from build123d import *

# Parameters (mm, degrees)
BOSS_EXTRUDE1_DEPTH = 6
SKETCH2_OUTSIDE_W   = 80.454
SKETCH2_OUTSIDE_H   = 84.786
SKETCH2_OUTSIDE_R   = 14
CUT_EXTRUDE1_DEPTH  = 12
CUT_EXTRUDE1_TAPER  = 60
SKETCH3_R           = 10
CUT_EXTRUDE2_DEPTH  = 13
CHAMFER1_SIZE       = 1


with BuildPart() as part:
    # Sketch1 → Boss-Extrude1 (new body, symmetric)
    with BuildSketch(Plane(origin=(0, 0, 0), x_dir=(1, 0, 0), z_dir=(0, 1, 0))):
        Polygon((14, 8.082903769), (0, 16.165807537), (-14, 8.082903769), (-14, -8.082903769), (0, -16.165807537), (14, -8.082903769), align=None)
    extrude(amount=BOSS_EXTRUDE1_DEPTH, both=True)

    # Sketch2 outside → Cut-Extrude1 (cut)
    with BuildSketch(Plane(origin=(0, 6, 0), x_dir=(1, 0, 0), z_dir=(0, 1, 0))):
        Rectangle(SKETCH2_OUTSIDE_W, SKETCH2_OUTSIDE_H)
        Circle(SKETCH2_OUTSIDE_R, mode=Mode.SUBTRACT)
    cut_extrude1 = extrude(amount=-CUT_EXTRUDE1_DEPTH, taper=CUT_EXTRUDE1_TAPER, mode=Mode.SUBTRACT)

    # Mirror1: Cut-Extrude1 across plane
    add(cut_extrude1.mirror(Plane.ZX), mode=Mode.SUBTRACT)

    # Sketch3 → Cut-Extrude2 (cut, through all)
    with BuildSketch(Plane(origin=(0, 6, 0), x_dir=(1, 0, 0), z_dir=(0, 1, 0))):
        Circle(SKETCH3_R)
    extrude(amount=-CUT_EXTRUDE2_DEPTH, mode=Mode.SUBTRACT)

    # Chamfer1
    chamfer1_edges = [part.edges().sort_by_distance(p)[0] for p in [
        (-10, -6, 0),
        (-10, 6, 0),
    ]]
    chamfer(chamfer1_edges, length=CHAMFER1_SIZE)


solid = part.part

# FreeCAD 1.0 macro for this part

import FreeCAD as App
import Part
import Sketcher

V = App.Vector
Q = App.Units.Quantity


def edges_at(feature, points):
    """Names of the edges that pass closest to the given points."""
    edges = feature.Shape.Edges
    near = lambda p: min(range(len(edges)), key=lambda i: edges[i].distToShape(Part.Vertex(*p))[0])
    return sorted({f"Edge{near(p) + 1}" for p in points})

doc = App.newDocument("Part")
body = doc.addObject("PartDesign::Body", "Body")

# Sketch on XZ plane
sketch1 = doc.addObject("Sketcher::SketchObject", "Sketch")
body.addObject(sketch1)
sketch1.AttachmentSupport = (doc.XZ_Plane, [""])
sketch1.MapMode = "FlatFace"
sketch1.addGeometry(Part.LineSegment(V(14, -8.082904, 0), V(0, -16.165808, 0)), False)
sketch1.addGeometry(Part.LineSegment(V(0, -16.165808, 0), V(-14, -8.082904, 0)), False)
sketch1.addGeometry(Part.LineSegment(V(-14, -8.082904, 0), V(-14, 8.082904, 0)), False)
sketch1.addGeometry(Part.LineSegment(V(-14, 8.082904, 0), V(0, 16.165808, 0)), False)
sketch1.addGeometry(Part.LineSegment(V(0, 16.165808, 0), V(14, 8.082904, 0)), False)
sketch1.addGeometry(Part.LineSegment(V(14, 8.082904, 0), V(14, -8.082904, 0)), False)
sketch1.addConstraint(Sketcher.Constraint("Coincident", 0, 2, 1, 1))
sketch1.addConstraint(Sketcher.Constraint("Coincident", 1, 2, 2, 1))
sketch1.addConstraint(Sketcher.Constraint("Coincident", 2, 2, 3, 1))
sketch1.addConstraint(Sketcher.Constraint("Coincident", 3, 2, 4, 1))
sketch1.addConstraint(Sketcher.Constraint("Coincident", 4, 2, 5, 1))
sketch1.addConstraint(Sketcher.Constraint("Coincident", 5, 2, 0, 1))
sketch1.addConstraint(Sketcher.Constraint("Vertical", 2))
sketch1.addConstraint(Sketcher.Constraint("Vertical", 5))
sketch1.addConstraint(Sketcher.Constraint("Symmetric", 0, 2, 3, 2, -1, 1))
sketch1.addConstraint(Sketcher.Constraint("Symmetric", 1, 2, 4, 2, -1, 1))
sketch1.addConstraint(Sketcher.Constraint("PointOnObject", 0, 2, -2))
sketch1.addConstraint(Sketcher.Constraint("Parallel", 0, 3))
sketch1.addConstraint(Sketcher.Constraint("Horizontal", 2, 2, 4, 2))
sketch1.addConstraint(Sketcher.Constraint("Angle", 0, Q("-150 deg")))
sketch1.addConstraint(Sketcher.Constraint("DistanceX", 1, 2, -1, 1, Q("14 mm")))
sketch1.addConstraint(Sketcher.Constraint("DistanceY", 2, 1, 2, 2, Q("16.165808 mm")))
pad1 = doc.addObject("PartDesign::Pad", "Pad")
body.addObject(pad1)
pad1.Profile = sketch1
pad1.Length = 12
pad1.Midplane = True

# Sketch on XZ plane
sketch2 = doc.addObject("Sketcher::SketchObject", "Sketch001")
body.addObject(sketch2)
sketch2.AttachmentSupport = (doc.XZ_Plane, [""])
sketch2.MapMode = "FlatFace"
sketch2.AttachmentOffset = App.Placement(V(0, 0, -6), App.Rotation())
sketch2.addGeometry(Part.LineSegment(V(-40.227, -42.393, 0), V(-40.227, 42.393, 0)), False)
sketch2.addGeometry(Part.LineSegment(V(-40.227, 42.393, 0), V(40.227, 42.393, 0)), False)
sketch2.addGeometry(Part.LineSegment(V(40.227, 42.393, 0), V(40.227, -42.393, 0)), False)
sketch2.addGeometry(Part.LineSegment(V(40.227, -42.393, 0), V(-40.227, -42.393, 0)), False)
sketch2.addGeometry(Part.Circle(V(0, 0, 0), V(0, 0, 1), 14), False)
sketch2.addConstraint(Sketcher.Constraint("Coincident", 0, 2, 1, 1))
sketch2.addConstraint(Sketcher.Constraint("Coincident", 1, 2, 2, 1))
sketch2.addConstraint(Sketcher.Constraint("Coincident", 2, 2, 3, 1))
sketch2.addConstraint(Sketcher.Constraint("Coincident", 3, 2, 0, 1))
sketch2.addConstraint(Sketcher.Constraint("Vertical", 0))
sketch2.addConstraint(Sketcher.Constraint("Horizontal", 1))
sketch2.addConstraint(Sketcher.Constraint("Vertical", 2))
sketch2.addConstraint(Sketcher.Constraint("Horizontal", 3))
sketch2.addConstraint(Sketcher.Constraint("Coincident", 4, 3, -1, 1))
sketch2.addConstraint(Sketcher.Constraint("Symmetric", 0, 2, 2, 2, -1, 1))
sketch2.addConstraint(Sketcher.Constraint("Diameter", 4, Q("28 mm")))
sketch2.addConstraint(Sketcher.Constraint("DistanceX", 1, 1, 1, 2, Q("80.454 mm")))
sketch2.addConstraint(Sketcher.Constraint("DistanceY", 0, 1, 0, 2, Q("84.786 mm")))
pocket1 = doc.addObject("PartDesign::Pocket", "Pocket")
body.addObject(pocket1)
pocket1.Profile = sketch2
pocket1.Length = 12
pocket1.Reversed = True
pocket1.TaperAngle = 60
doc.recompute()

mirrored = doc.addObject("PartDesign::Mirrored", "Mirrored")
body.addObject(mirrored)
mirrored.Originals = [pocket1]
mirrored.MirrorPlane = (doc.XZ_Plane, [""])
body.Tip = mirrored

# Sketch on XZ plane
sketch3 = doc.addObject("Sketcher::SketchObject", "Sketch002")
body.addObject(sketch3)
sketch3.AttachmentSupport = (doc.XZ_Plane, [""])
sketch3.MapMode = "FlatFace"
sketch3.AttachmentOffset = App.Placement(V(0, 0, -6), App.Rotation())
sketch3.addGeometry(Part.Circle(V(0, 0, 0), V(0, 0, 1), 10), False)
sketch3.addConstraint(Sketcher.Constraint("Coincident", 0, 3, -1, 1))
sketch3.addConstraint(Sketcher.Constraint("Diameter", 0, Q("20 mm")))
pocket2 = doc.addObject("PartDesign::Pocket", "Pocket001")
body.addObject(pocket2)
pocket2.Profile = sketch3
pocket2.Type = "ThroughAll"
pocket2.Reversed = True
doc.recompute()

chamfer = doc.addObject("PartDesign::Chamfer", "Chamfer")
body.addObject(chamfer)
chamfer.Base = (pocket2, edges_at(pocket2, [(-10, -6, 0), (-10, 6, 0)]))
chamfer.Size = 1

doc.recompute()
